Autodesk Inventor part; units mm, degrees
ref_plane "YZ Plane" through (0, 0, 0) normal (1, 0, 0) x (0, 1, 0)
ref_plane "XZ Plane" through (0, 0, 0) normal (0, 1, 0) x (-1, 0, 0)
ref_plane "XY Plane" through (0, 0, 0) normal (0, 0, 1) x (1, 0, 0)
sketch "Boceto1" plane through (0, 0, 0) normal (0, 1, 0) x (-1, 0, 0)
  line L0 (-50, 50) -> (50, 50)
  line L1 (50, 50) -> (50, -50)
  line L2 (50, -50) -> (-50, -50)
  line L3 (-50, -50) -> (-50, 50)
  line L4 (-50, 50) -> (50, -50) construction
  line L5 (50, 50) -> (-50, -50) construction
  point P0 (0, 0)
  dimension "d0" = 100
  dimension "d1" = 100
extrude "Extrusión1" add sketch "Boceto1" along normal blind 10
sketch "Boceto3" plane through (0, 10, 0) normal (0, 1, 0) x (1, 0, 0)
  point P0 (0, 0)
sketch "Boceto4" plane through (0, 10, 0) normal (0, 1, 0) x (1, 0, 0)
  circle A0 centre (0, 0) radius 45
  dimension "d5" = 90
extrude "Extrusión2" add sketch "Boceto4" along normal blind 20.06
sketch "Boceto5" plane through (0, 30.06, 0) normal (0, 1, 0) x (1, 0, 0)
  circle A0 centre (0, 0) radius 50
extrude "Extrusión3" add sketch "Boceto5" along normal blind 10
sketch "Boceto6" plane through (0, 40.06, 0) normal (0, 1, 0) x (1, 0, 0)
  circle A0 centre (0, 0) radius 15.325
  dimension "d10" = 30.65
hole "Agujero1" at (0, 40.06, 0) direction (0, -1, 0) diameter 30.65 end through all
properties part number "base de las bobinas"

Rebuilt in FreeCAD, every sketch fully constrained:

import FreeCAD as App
import Part
import Sketcher

V = App.Vector
Q = App.Units.Quantity

doc = App.newDocument("Part")
body = doc.addObject("PartDesign::Body", "Body")

# Sketch on XZ plane
sketch1 = doc.addObject("Sketcher::SketchObject", "Sketch")
body.addObject(sketch1)
sketch1.AttachmentSupport = (doc.XZ_Plane, [""])
sketch1.MapMode = "FlatFace"
sketch1.addGeometry([
    Part.LineSegment(V(-50, 50, 0), V(50, 50, 0)),
    Part.LineSegment(V(50, 50, 0), V(50, -50, 0)),
    Part.LineSegment(V(50, -50, 0), V(-50, -50, 0)),
    Part.LineSegment(V(-50, -50, 0), V(-50, 50, 0)),
], False)
sketch1.addConstraint([
    Sketcher.Constraint("Coincident", 0, 2, 1, 1),
    Sketcher.Constraint("Coincident", 1, 2, 2, 1),
    Sketcher.Constraint("Coincident", 2, 2, 3, 1),
    Sketcher.Constraint("Coincident", 3, 2, 0, 1),
    Sketcher.Constraint("Horizontal", 0),
    Sketcher.Constraint("Vertical", 1),
    Sketcher.Constraint("Horizontal", 2),
    Sketcher.Constraint("Vertical", 3),
    Sketcher.Constraint("Symmetric", 0, 2, 2, 2, -1, 1),
    Sketcher.Constraint("Equal", 2, 1),
    Sketcher.Constraint("DistanceX", 0, 1, 0, 2, Q("3.937 in")),
])
pad1 = doc.addObject("PartDesign::Pad", "Pad")
body.addObject(pad1)
pad1.Profile = sketch1
pad1.Length = Q("0.3937008 in")
pad1.Reversed = True

# Sketch on XZ plane
sketch2 = doc.addObject("Sketcher::SketchObject", "Sketch001")
body.addObject(sketch2)
sketch2.AttachmentSupport = (doc.XZ_Plane, [""])
sketch2.MapMode = "FlatFace"
sketch2.AttachmentOffset = App.Placement(V(0, 0, -0.3937008 * 25.4), App.Rotation())
sketch2.addGeometry(Part.Circle(V(0, 0, 0), V(0, 0, 1), 45), False)
sketch2.addConstraint([
    Sketcher.Constraint("Coincident", 0, 3, -1, 1),
    Sketcher.Constraint("Diameter", 0, Q("3.5433 in")),
])
pad2 = doc.addObject("PartDesign::Pad", "Pad001")
body.addObject(pad2)
pad2.Profile = sketch2
pad2.Length = 20.06
pad2.Reversed = True

# Sketch on XZ plane
sketch3 = doc.addObject("Sketcher::SketchObject", "Sketch002")
body.addObject(sketch3)
sketch3.AttachmentSupport = (doc.XZ_Plane, [""])
sketch3.MapMode = "FlatFace"
sketch3.AttachmentOffset = App.Placement(V(0, 0, -30.06), App.Rotation())
sketch3.addGeometry(Part.Circle(V(0, 0, 0), V(0, 0, 1), 50), False)
sketch3.addConstraint([
    Sketcher.Constraint("Coincident", 0, 3, -1, 1),
    Sketcher.Constraint("Diameter", 0, Q("3.937 in")),
])
pad3 = doc.addObject("PartDesign::Pad", "Pad002")
body.addObject(pad3)
pad3.Profile = sketch3
pad3.Length = Q("0.3937008 in")
pad3.Reversed = True

# Sketch on XZ plane
sketch4 = doc.addObject("Sketcher::SketchObject", "Sketch003")
body.addObject(sketch4)
sketch4.AttachmentSupport = (doc.XZ_Plane, [""])
sketch4.MapMode = "FlatFace"
sketch4.AttachmentOffset = App.Placement(V(0, 0, -40.06), App.Rotation())
sketch4.addGeometry(Part.Circle(V(0, 0, 0), V(0, 0, 1), 15), False)
sketch4.addConstraint([
    Sketcher.Constraint("Coincident", 0, 3, -1, 1),
    Sketcher.Constraint("Diameter", 0, Q("1.2067 in")),
])
doc.recompute()
hole = doc.addObject("PartDesign::Hole", "Hole")
body.addObject(hole)
hole.Profile = sketch4
hole.ThreadType = "None"
hole.Diameter = Q("1.2066929 in")
hole.DepthType = "ThroughAll"
hole.Reversed = True

doc.recompute()
